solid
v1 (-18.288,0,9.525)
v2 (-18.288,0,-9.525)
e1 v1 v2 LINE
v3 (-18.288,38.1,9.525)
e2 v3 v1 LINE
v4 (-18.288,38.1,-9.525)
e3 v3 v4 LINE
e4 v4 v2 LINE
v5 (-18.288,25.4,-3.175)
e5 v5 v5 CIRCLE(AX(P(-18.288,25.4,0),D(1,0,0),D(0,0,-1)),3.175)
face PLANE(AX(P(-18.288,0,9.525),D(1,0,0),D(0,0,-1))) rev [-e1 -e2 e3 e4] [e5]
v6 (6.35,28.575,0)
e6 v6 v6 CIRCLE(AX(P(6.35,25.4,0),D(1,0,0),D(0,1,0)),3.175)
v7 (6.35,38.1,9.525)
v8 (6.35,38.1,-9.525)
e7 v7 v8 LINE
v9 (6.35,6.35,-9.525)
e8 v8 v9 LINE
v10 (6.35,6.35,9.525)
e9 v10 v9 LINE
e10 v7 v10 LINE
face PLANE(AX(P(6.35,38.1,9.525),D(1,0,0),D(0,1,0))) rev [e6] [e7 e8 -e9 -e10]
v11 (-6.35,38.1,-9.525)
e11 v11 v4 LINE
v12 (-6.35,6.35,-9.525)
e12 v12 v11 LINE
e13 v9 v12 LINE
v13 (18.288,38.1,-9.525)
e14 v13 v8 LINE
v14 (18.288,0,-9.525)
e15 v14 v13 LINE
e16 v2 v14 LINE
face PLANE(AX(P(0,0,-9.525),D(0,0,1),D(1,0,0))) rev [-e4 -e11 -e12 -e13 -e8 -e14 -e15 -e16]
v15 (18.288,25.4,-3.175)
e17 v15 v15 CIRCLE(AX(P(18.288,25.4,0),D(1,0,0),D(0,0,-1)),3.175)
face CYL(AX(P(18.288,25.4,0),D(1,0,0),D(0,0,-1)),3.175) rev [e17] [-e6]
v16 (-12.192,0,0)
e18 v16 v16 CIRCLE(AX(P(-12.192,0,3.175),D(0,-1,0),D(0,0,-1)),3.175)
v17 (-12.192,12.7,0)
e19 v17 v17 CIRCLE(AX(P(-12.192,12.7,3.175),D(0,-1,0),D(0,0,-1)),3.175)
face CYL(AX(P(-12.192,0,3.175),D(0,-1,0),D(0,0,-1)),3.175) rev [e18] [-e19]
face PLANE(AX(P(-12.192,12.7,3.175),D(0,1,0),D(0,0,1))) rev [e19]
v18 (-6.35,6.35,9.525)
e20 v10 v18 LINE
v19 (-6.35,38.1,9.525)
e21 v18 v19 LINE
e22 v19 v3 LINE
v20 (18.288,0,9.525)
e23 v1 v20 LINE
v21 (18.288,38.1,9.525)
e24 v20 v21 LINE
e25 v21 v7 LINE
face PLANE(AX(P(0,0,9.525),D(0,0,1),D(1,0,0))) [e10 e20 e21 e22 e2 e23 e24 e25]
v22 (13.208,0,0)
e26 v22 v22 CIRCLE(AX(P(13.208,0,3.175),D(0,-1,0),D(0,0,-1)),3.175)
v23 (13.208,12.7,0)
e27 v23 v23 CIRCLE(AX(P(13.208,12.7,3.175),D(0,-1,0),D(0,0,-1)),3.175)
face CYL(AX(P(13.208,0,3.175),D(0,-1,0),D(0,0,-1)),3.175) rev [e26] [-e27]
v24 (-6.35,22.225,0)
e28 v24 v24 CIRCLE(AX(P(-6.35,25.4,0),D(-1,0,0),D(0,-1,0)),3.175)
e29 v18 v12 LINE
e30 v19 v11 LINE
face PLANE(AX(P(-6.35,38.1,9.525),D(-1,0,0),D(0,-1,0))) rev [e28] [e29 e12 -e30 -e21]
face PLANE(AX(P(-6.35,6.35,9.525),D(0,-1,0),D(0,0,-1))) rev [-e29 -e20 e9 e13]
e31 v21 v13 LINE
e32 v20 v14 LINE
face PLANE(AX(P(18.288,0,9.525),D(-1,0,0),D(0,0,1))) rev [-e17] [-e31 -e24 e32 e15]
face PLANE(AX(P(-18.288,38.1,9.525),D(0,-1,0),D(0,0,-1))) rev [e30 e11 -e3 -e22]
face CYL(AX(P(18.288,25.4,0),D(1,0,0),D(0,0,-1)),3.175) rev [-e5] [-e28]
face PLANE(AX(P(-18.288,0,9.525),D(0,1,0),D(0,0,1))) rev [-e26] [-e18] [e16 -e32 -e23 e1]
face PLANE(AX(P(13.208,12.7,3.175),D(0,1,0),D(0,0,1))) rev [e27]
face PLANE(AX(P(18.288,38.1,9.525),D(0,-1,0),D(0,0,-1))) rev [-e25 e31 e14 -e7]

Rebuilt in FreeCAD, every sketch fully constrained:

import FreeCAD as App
import Part
import Sketcher
Q = App.Units.Quantity

doc = App.newDocument("Part")
body = doc.addObject("PartDesign::Body", "Body")

sketch1 = doc.addObject("Sketcher::SketchObject", "Sketch")
body.addObject(sketch1)
sketch1.AttachmentSupport = (doc.XY_Plane, [""])
sketch1.MapMode = "FlatFace"
sketch1.addGeometry([
    Part.LineSegment(App.Vector(-18, 38, 0), App.Vector(-18, 0, 0)),
    Part.LineSegment(App.Vector(-18, 0, 0), App.Vector(18, 0, 0)),
    Part.LineSegment(App.Vector(18, 0, 0), App.Vector(18, 38, 0)),
    Part.LineSegment(App.Vector(18, 38, 0), App.Vector(6, 38, 0)),
    Part.LineSegment(App.Vector(6, 38, 0), App.Vector(6, 6, 0)),
    Part.LineSegment(App.Vector(6, 6, 0), App.Vector(-6, 6, 0)),
    Part.LineSegment(App.Vector(-6, 6, 0), App.Vector(-6, 38, 0)),
    Part.LineSegment(App.Vector(-6, 38, 0), App.Vector(-18, 38, 0)),
], False)
sketch1.addConstraint([
    Sketcher.Constraint("Coincident", 0, 2, 1, 1),
    Sketcher.Constraint("Coincident", 1, 2, 2, 1),
    Sketcher.Constraint("Coincident", 2, 2, 3, 1),
    Sketcher.Constraint("Coincident", 3, 2, 4, 1),
    Sketcher.Constraint("Coincident", 4, 2, 5, 1),
    Sketcher.Constraint("Coincident", 5, 2, 6, 1),
    Sketcher.Constraint("Coincident", 6, 2, 7, 1),
    Sketcher.Constraint("Coincident", 7, 2, 0, 1),
    Sketcher.Constraint("Vertical", 0),
    Sketcher.Constraint("Horizontal", 1),
    Sketcher.Constraint("Vertical", 2),
    Sketcher.Constraint("Horizontal", 3),
    Sketcher.Constraint("Vertical", 4),
    Sketcher.Constraint("Horizontal", 5),
    Sketcher.Constraint("Vertical", 6),
    Sketcher.Constraint("Horizontal", 7),
    Sketcher.Constraint("Symmetric", 0, 2, 1, 2, -1, 1),
    Sketcher.Constraint("Symmetric", 3, 2, 6, 2, -2),
    Sketcher.Constraint("DistanceX", 5, 2, 5, 1, Q("0.5 in")),
    Sketcher.Constraint("DistanceY", 0, 2, 0, 1, Q("1.5 in")),
    Sketcher.Constraint("DistanceX", 1, 1, 1, 2, Q("1.44 in")),
    Sketcher.Constraint("DistanceY", 4, 2, 4, 1, Q("1.25 in")),
])
pad1 = doc.addObject("PartDesign::Pad", "Pad")
body.addObject(pad1)
pad1.Profile = sketch1
pad1.Length = Q("0.75 in")
pad1.Midplane = True

sketch2 = doc.addObject("Sketcher::SketchObject", "Sketch001")
body.addObject(sketch2)
sketch2.AttachmentSupport = (doc.YZ_Plane, [""])
sketch2.MapMode = "FlatFace"
sketch2.AttachmentOffset = App.Placement(App.Vector(0, 0, 0.72 * 25.4), App.Rotation())
sketch2.addGeometry(Part.Circle(App.Vector(25.4, 0, 0), App.Vector(0, 0, 1), 3.2), False)
sketch2.addConstraint([
    Sketcher.Constraint("PointOnObject", 0, 3, -1),
    Sketcher.Constraint("Diameter", 0, Q("0.25 in")),
    Sketcher.Constraint("DistanceX", -1, 1, 0, 3, Q("1 in")),
])
doc.recompute()
hole = doc.addObject("PartDesign::Hole", "Hole")
body.addObject(hole)
hole.Profile = sketch2
hole.ThreadType = "None"
hole.Diameter = Q("0.25 in")
hole.DepthType = "ThroughAll"

sketch3 = doc.addObject("Sketcher::SketchObject", "Sketch002")
body.addObject(sketch3)
sketch3.AttachmentSupport = (doc.XZ_Plane, [""])
sketch3.MapMode = "FlatFace"
sketch3.addGeometry([
    Part.Circle(App.Vector(13.2, 3.2, 0), App.Vector(0, 0, 1), 3.2),
    Part.Circle(App.Vector(-12.2, 3.2, 0), App.Vector(0, 0, 1), 3.2),
], False)
sketch3.addConstraint([
    Sketcher.Constraint("Equal", 0, 1),
    Sketcher.Constraint("Horizontal", 0, 3, 1, 3),
    Sketcher.Constraint("Diameter", 0, Q("0.25 in")),
    Sketcher.Constraint("DistanceX", 1, 3, 0, 3, Q("1 in")),
    Sketcher.Constraint("DistanceX", -1, 1, 0, 3, Q("0.52 in")),
    Sketcher.Constraint("DistanceY", -1, 1, 0, 3, Q("0.125 in")),
])
doc.recompute()
hole2 = doc.addObject("PartDesign::Hole", "Hole001")
body.addObject(hole2)
hole2.Profile = sketch3
hole2.ThreadType = "None"
hole2.Diameter = Q("0.25 in")
hole2.DepthType = "Dimension"
hole2.Depth = Q("0.5 in")
hole2.DrillPoint = "Flat"

doc.recompute()
